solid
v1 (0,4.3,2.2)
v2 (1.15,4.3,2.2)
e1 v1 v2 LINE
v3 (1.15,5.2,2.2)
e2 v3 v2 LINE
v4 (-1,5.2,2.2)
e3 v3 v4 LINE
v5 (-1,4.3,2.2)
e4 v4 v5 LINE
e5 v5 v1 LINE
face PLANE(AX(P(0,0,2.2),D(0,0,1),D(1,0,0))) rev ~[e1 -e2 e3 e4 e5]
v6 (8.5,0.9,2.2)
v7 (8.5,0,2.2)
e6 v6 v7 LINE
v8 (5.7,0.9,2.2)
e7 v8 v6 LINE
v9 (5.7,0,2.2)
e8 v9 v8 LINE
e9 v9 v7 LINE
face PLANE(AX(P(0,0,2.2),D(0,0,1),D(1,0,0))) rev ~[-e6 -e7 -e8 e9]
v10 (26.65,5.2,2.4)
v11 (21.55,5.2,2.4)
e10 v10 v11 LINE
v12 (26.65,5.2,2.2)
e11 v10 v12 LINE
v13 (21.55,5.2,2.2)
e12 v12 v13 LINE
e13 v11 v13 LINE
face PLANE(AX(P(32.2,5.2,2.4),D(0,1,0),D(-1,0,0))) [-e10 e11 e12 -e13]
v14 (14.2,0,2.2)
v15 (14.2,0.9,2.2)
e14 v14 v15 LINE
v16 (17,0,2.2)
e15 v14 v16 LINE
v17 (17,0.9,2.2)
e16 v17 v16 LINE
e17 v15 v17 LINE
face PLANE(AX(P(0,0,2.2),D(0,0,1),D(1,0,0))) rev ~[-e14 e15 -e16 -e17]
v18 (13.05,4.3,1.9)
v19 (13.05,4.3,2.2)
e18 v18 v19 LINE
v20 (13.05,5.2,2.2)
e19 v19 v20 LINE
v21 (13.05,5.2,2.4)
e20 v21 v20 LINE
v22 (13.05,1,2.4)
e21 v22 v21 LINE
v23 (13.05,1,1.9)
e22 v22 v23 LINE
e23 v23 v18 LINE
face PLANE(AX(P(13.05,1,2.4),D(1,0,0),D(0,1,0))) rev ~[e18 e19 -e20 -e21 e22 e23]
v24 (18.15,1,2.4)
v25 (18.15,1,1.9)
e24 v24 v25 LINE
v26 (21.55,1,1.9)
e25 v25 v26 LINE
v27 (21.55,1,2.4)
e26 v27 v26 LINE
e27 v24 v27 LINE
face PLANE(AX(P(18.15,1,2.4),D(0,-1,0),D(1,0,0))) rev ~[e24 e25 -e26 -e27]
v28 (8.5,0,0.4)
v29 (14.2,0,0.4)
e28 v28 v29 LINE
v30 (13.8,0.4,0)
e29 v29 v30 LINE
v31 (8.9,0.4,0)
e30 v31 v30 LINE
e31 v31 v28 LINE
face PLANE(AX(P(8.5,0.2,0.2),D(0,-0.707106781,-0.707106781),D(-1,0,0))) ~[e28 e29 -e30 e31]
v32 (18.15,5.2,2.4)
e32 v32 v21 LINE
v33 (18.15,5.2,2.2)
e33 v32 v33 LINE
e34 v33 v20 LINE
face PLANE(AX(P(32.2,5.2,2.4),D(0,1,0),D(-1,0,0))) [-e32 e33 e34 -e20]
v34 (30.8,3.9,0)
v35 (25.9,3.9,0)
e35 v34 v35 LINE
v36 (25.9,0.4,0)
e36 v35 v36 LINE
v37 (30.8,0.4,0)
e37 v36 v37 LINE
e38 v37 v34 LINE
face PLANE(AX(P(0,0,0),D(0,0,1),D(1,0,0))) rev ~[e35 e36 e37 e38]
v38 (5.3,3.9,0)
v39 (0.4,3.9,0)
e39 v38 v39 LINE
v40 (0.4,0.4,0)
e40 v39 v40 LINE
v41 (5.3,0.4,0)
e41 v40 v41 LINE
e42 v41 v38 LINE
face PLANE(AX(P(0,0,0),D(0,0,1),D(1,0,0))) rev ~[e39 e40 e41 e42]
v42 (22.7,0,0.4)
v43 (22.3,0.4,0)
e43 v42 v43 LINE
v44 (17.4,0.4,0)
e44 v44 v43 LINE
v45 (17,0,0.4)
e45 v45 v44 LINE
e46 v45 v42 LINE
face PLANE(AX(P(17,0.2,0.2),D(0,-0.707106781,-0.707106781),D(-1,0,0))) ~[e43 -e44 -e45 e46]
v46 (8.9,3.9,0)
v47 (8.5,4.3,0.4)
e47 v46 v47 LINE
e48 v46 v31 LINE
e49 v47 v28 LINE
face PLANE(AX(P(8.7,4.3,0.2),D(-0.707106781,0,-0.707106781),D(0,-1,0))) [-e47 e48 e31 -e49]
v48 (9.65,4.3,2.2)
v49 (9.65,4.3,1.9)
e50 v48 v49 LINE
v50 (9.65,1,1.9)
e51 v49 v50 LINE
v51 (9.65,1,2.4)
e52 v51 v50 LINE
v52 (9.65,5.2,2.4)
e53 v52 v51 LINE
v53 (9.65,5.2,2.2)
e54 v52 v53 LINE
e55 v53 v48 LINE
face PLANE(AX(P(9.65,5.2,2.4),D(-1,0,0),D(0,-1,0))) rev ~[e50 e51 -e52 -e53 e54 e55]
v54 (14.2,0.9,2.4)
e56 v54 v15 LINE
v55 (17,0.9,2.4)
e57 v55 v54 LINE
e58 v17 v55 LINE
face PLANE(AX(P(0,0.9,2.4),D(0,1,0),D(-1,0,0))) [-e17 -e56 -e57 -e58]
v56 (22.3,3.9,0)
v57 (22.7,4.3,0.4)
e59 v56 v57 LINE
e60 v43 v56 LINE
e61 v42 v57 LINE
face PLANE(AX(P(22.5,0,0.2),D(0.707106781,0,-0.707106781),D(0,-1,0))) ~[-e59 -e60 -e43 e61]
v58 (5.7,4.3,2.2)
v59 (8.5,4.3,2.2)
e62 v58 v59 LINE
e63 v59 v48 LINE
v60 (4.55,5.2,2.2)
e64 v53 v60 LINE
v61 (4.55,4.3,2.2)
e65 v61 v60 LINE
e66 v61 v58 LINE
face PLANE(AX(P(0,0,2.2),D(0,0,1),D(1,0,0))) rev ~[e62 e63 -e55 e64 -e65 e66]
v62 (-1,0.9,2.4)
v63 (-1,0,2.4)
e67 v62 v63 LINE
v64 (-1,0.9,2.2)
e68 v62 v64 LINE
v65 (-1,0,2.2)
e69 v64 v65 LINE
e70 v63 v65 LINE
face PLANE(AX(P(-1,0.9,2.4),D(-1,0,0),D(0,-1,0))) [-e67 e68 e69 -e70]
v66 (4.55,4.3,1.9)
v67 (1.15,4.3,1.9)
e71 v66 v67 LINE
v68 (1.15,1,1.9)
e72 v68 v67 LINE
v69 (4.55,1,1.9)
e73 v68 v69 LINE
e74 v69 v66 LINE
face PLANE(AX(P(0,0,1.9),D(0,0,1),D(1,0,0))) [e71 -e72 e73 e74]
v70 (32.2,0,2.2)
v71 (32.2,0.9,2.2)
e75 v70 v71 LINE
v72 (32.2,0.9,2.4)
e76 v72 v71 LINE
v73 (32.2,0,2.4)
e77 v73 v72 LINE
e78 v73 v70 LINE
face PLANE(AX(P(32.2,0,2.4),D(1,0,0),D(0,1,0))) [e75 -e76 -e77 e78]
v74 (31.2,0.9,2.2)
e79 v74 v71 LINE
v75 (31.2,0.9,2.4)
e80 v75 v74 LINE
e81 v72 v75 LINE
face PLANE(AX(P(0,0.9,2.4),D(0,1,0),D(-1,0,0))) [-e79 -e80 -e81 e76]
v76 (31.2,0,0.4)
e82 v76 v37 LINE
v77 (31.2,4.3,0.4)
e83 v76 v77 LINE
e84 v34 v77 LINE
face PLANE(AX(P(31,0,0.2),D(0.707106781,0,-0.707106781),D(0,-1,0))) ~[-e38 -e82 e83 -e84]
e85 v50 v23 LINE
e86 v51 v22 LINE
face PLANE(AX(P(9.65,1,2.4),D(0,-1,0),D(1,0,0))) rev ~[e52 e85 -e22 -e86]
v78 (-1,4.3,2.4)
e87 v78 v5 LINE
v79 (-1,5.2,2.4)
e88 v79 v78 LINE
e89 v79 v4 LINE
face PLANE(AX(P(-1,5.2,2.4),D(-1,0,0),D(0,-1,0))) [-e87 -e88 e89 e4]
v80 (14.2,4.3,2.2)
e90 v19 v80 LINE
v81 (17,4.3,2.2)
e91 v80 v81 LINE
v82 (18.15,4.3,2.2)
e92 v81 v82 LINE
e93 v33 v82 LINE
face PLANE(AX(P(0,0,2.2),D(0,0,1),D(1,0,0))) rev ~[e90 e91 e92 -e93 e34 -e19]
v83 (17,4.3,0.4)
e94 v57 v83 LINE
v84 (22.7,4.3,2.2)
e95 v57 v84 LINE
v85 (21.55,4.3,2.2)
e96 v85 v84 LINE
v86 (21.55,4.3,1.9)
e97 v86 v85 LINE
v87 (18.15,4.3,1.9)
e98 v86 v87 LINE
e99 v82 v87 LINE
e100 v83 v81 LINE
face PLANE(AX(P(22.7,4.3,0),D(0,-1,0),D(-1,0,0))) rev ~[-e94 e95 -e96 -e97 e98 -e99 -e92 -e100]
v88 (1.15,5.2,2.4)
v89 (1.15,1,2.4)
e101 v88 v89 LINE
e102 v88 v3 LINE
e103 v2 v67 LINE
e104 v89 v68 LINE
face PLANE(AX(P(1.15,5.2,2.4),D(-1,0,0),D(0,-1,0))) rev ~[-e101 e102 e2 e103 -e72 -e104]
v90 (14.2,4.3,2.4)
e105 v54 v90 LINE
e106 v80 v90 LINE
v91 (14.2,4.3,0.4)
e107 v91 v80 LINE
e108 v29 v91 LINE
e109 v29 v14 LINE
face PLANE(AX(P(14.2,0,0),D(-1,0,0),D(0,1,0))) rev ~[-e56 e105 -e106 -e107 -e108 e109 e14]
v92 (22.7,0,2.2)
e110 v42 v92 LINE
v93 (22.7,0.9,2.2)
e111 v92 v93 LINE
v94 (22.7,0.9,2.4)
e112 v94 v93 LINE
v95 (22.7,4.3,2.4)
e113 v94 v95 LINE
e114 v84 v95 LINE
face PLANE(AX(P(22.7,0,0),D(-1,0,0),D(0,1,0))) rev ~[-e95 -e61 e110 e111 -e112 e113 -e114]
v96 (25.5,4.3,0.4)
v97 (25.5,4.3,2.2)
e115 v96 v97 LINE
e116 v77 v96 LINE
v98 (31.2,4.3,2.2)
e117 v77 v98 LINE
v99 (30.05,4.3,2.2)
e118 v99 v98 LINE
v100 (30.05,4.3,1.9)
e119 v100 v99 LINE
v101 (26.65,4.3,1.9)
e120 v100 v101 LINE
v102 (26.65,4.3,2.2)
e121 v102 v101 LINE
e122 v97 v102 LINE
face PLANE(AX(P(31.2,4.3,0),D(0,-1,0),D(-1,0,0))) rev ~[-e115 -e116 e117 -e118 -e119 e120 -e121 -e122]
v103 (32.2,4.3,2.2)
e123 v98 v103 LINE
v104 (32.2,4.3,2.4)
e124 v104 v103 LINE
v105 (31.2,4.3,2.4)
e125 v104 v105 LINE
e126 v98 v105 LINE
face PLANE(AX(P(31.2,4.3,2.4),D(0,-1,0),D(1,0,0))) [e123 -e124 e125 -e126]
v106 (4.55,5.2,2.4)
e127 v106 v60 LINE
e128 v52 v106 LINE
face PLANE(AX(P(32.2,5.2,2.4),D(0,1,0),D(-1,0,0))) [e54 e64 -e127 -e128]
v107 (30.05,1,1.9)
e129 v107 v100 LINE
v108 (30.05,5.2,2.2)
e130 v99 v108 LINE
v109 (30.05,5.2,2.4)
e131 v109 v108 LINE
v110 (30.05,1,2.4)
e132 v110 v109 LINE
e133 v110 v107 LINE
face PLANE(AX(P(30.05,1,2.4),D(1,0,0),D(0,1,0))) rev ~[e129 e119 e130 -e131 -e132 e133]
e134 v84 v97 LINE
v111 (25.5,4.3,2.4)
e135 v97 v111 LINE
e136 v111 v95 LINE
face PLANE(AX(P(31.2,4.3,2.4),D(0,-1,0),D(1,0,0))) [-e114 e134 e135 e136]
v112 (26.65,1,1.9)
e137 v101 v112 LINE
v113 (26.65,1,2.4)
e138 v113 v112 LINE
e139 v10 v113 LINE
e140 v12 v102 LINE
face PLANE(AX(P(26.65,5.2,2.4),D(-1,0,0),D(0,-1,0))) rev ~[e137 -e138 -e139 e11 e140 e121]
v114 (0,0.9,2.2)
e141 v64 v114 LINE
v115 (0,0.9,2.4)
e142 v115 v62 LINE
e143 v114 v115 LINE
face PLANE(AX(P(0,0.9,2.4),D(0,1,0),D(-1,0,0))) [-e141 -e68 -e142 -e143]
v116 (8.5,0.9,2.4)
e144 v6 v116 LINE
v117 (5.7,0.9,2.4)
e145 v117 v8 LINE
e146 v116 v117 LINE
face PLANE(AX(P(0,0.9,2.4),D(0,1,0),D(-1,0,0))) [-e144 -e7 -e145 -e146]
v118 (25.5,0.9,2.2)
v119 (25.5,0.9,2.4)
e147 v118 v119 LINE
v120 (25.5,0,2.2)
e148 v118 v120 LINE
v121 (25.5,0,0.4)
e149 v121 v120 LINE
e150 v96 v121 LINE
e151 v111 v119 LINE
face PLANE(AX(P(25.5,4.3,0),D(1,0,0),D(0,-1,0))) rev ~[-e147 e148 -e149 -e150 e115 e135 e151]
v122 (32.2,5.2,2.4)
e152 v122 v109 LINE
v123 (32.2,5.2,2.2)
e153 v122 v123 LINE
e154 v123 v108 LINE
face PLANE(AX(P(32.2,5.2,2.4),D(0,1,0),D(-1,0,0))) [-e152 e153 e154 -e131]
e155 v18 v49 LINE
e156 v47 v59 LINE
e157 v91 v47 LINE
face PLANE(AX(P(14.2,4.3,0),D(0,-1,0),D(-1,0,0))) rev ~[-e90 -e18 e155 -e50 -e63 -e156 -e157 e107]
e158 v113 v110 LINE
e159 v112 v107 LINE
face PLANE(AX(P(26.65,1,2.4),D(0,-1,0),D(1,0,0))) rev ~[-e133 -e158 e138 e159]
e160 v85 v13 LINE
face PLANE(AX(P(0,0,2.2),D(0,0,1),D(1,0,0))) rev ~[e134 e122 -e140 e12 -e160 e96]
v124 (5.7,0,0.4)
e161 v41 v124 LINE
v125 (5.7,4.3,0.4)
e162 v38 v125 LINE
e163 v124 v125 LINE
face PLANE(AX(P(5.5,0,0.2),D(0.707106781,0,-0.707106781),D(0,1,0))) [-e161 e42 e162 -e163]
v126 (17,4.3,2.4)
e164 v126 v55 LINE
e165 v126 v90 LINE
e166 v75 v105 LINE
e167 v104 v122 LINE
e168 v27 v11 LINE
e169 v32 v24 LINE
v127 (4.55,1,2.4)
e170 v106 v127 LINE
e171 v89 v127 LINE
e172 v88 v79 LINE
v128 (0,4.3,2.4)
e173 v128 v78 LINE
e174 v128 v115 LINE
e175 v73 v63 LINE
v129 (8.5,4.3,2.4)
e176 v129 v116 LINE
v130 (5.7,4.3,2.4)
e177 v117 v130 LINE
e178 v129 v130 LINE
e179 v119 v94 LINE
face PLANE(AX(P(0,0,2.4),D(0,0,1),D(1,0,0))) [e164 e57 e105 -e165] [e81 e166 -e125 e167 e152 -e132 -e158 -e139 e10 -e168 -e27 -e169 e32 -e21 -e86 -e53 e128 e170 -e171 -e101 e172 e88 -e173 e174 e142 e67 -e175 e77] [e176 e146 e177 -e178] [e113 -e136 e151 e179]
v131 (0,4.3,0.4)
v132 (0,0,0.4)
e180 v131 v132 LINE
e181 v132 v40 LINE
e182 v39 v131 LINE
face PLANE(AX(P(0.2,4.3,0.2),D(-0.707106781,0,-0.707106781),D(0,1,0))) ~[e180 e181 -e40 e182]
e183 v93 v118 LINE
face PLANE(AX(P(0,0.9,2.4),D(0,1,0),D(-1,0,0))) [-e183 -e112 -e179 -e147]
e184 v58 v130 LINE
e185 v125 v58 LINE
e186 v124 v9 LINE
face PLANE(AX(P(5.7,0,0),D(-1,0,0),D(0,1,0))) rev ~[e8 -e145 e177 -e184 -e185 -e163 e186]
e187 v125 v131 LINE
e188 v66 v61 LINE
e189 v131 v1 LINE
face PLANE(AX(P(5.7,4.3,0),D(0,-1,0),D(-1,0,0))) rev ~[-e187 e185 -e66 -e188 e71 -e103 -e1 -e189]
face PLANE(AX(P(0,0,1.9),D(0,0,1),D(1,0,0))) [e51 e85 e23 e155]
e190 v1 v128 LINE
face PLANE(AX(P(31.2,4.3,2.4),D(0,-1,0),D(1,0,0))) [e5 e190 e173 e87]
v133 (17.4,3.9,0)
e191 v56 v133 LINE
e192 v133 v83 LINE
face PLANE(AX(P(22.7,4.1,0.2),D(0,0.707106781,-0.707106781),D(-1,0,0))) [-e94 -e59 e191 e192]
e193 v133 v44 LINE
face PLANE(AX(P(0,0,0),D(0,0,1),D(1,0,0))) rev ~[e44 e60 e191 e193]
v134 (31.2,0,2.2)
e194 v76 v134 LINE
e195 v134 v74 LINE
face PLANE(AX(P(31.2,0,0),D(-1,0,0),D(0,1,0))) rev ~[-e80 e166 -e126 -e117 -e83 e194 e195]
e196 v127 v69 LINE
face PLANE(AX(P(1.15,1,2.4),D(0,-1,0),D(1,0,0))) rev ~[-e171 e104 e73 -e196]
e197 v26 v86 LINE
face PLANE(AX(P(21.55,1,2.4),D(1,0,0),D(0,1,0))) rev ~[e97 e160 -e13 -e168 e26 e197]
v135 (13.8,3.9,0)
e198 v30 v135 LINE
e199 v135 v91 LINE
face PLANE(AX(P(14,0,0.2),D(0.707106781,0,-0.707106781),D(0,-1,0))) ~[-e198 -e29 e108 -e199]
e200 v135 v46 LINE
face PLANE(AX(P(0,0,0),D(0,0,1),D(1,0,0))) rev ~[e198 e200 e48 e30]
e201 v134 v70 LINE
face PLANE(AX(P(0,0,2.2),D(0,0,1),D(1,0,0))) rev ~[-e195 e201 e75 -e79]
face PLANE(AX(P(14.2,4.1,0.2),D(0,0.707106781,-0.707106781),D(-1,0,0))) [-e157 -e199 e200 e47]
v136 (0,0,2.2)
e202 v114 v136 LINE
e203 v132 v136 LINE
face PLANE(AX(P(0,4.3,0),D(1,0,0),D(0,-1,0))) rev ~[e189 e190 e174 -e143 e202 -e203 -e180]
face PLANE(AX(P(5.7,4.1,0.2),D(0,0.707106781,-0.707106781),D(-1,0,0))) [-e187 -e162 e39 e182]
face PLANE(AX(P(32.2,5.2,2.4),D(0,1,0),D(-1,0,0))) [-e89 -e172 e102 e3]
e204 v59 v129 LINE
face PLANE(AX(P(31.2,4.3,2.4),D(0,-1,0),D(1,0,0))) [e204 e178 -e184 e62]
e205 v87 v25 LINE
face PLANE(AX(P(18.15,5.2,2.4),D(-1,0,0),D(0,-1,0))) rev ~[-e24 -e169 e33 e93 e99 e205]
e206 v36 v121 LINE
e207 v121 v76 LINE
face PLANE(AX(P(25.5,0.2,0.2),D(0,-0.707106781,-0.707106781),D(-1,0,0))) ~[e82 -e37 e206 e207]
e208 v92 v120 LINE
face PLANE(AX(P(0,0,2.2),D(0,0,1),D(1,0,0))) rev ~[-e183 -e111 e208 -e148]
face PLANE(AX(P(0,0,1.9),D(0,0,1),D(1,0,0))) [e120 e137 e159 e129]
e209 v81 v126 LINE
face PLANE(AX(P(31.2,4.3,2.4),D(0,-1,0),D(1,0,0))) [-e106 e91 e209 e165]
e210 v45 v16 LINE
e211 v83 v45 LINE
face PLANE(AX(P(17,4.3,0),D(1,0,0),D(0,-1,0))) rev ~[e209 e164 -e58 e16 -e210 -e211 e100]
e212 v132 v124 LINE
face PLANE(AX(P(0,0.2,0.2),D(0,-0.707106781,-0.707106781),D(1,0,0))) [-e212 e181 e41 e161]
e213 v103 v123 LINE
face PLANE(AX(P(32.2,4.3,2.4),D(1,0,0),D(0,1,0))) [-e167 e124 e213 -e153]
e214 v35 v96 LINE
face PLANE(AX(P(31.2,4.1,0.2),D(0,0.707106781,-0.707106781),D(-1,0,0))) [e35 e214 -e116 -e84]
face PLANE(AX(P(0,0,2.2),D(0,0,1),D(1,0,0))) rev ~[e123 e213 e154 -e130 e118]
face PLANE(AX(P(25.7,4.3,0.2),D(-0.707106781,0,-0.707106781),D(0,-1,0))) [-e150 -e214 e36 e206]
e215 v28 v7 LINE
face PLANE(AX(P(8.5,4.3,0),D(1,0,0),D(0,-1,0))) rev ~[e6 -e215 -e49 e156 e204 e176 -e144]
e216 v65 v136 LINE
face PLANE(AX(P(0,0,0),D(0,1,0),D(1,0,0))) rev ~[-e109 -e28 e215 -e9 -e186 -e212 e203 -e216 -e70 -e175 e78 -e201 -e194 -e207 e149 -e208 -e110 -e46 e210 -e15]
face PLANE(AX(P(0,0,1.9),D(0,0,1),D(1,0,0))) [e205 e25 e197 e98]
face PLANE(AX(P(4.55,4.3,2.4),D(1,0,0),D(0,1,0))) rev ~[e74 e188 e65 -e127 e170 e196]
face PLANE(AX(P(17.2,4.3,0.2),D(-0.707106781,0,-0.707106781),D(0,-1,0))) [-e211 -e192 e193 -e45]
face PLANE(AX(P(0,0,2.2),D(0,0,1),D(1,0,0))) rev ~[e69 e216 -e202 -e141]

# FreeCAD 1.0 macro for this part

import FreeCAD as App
import Part
import Sketcher
from FreeCAD import Vector
Q = App.Units.Quantity


def edges_at(feature, points):
    """Names of the edges that pass closest to the given points."""
    edges = feature.Shape.Edges
    near = lambda p: min(range(len(edges)), key=lambda i: edges[i].distToShape(Part.Vertex(*p))[0])
    return sorted({f"Edge{near(p) + 1}" for p in points})


def add_polygon(sketch, points):
    """Adds a closed chain of lines whose ends are joined by coincident constraints."""
    first, n = sketch.GeometryCount, len(points)
    for a, b in zip(points, points[1:] + points[:1]):
        sketch.addGeometry(Part.LineSegment(App.Vector(*a, 0), App.Vector(*b, 0)), False)
    for i in range(n):
        sketch.addConstraint(Sketcher.Constraint("Coincident", first + i, 2, first + (i + 1) % n, 1))

doc = App.newDocument("Part")
params = doc.addObject("Spreadsheet::Sheet", "Params")
for row, (alias, value) in enumerate([
    ("sketch1_width", "5.7 mm"),
    ("sketch1_height", "4.3 mm"),
    ("pad1_length", "2.4 mm"),
    ("sketch2_height", "0.9 mm"),
    ("sketch2_width", "33.2 mm"),
    ("pad2_length", "0.2 mm"),
    ("sketch3_width", "3.4 mm"),
    ("sketch3_height", "4.2 mm"),
    ("pocket1_length", "0.5 mm"),
    ("chamfer_size", "0.4 mm"),
], start=1):
    params.set(f"A{row}", alias)
    params.set(f"B{row}", "=" + value)
    params.setAlias(f"B{row}", alias)

body = doc.addObject("PartDesign::Body", "Body")
body.AllowCompound = True

# Sketch on XY plane
sketch1 = doc.addObject("Sketcher::SketchObject", "Sketch")
body.addObject(sketch1)
sketch1.AttachmentSupport = (doc.XY_Plane, [""])
sketch1.MapMode = "FlatFace"
add_polygon(sketch1, [(0, 4.3), (0, 0), (5.7, 0), (5.7, 4.3)])  # lines 0-3
add_polygon(sketch1, [(8.5, 4.3), (8.5, 0), (14.2, 0), (14.2, 4.3)])  # lines 4-7
add_polygon(sketch1, [(17, 4.3), (17, 0), (22.7, 0), (22.7, 4.3)])  # lines 8-11
add_polygon(sketch1, [(25.5, 4.3), (25.5, 0), (31.2, 0), (31.2, 4.3)])  # lines 12-15
sketch1.addConstraint([
    Sketcher.Constraint("Vertical", 0),
    Sketcher.Constraint("Horizontal", 1),
    Sketcher.Constraint("Vertical", 2),
    Sketcher.Constraint("Horizontal", 3),
    Sketcher.Constraint("Vertical", 4),
    Sketcher.Constraint("Horizontal", 5),
    Sketcher.Constraint("Vertical", 6),
    Sketcher.Constraint("Horizontal", 7),
    Sketcher.Constraint("Vertical", 8),
    Sketcher.Constraint("Horizontal", 9),
    Sketcher.Constraint("Vertical", 10),
    Sketcher.Constraint("Horizontal", 11),
    Sketcher.Constraint("Vertical", 12),
    Sketcher.Constraint("Horizontal", 13),
    Sketcher.Constraint("Vertical", 14),
    Sketcher.Constraint("Horizontal", 15),
    Sketcher.Constraint("Coincident", 0, 2, -1, 1),
    Sketcher.Constraint("PointOnObject", 4, 2, -1),
    Sketcher.Constraint("PointOnObject", 8, 2, -1),
    Sketcher.Constraint("PointOnObject", 12, 2, -1),
    Sketcher.Constraint("Horizontal", 3, 2, 6, 2),
    Sketcher.Constraint("Horizontal", 7, 2, 10, 2),
    Sketcher.Constraint("Horizontal", 11, 2, 14, 2),
    Sketcher.Constraint("Equal", 3, 5),
    Sketcher.Constraint("Equal", 7, 9),
    Sketcher.Constraint("Equal", 11, 13),
    Sketcher.Constraint("DistanceX", 1, 1, 1, 2, Q("5.7 mm")),
    Sketcher.Constraint("DistanceY", 0, 2, 0, 1, Q("4.3 mm")),
    Sketcher.Constraint("DistanceX", -1, 1, 4, 2, Q("8.5 mm")),
    Sketcher.Constraint("DistanceX", 4, 2, 8, 2, Q("8.5 mm")),
    Sketcher.Constraint("DistanceX", 8, 2, 12, 2, Q("8.5 mm")),
])
sketch1.setExpression("Constraints[42]", "Params.sketch1_width")
sketch1.setExpression("Constraints[43]", "Params.sketch1_height")
pad1 = doc.addObject("PartDesign::Pad", "Pad")
body.addObject(pad1)
pad1.Profile = sketch1
pad1.setExpression("Length", "Params.pad1_length")

# Sketch on XY plane
sketch2 = doc.addObject("Sketcher::SketchObject", "Sketch001")
body.addObject(sketch2)
sketch2.AttachmentSupport = (doc.XY_Plane, [""])
sketch2.MapMode = "FlatFace"
sketch2.AttachmentOffset = App.Placement(Vector(0, 0, 2.4), App.Rotation())
add_polygon(sketch2, [(-1, 5.2), (-1, 4.3), (32.2, 4.3), (32.2, 5.2)])  # lines 0-3
add_polygon(sketch2, [(-1, 0), (32.2, 0), (32.2, 0.9), (-1, 0.9)])  # lines 4-7
sketch2.addConstraint([
    Sketcher.Constraint("Vertical", 0),
    Sketcher.Constraint("Horizontal", 1),
    Sketcher.Constraint("Vertical", 2),
    Sketcher.Constraint("Horizontal", 3),
    Sketcher.Constraint("Horizontal", 4),
    Sketcher.Constraint("Vertical", 5),
    Sketcher.Constraint("Horizontal", 6),
    Sketcher.Constraint("Vertical", 7),
    Sketcher.Constraint("PointOnObject", 4, 2, -1),
    Sketcher.Constraint("Vertical", 2, 2, 4, 2),
    Sketcher.Constraint("Vertical", 3, 2, 6, 2),
    Sketcher.Constraint("Equal", 2, 5),
    Sketcher.Constraint("DistanceY", 0, 2, 0, 1, Q("0.9 mm")),
    Sketcher.Constraint("DistanceX", 0, 2, -1, 1, Q("1 mm")),
    Sketcher.Constraint("DistanceX", 1, 1, 1, 2, Q("33.2 mm")),
    Sketcher.Constraint("DistanceY", -1, 1, 0, 2, Q("4.3 mm")),
])
sketch2.setExpression("Constraints[20]", "Params.sketch2_height")
sketch2.setExpression("Constraints[22]", "Params.sketch2_width")
pad2 = doc.addObject("PartDesign::Pad", "Pad001")
body.addObject(pad2)
pad2.Profile = sketch2
pad2.setExpression("Length", "Params.pad2_length")
pad2.Reversed = True

# Sketch on XY plane
sketch3 = doc.addObject("Sketcher::SketchObject", "Sketch002")
body.addObject(sketch3)
sketch3.AttachmentSupport = (doc.XY_Plane, [""])
sketch3.MapMode = "FlatFace"
sketch3.AttachmentOffset = App.Placement(Vector(0, 0, 2.4), App.Rotation())
add_polygon(sketch3, [(30.1, 1), (30.1, 5.2), (26.6, 5.2), (26.6, 1)])  # lines 0-3
add_polygon(sketch3, [(4.5, 5.2), (1.1, 5.2), (1.1, 1), (4.5, 1)])  # lines 4-7
add_polygon(sketch3, [(13.1, 1), (13.1, 5.2), (9.7, 5.2), (9.7, 1)])  # lines 8-11
add_polygon(sketch3, [(21.6, 1), (21.6, 5.2), (18.1, 5.2), (18.1, 1)])  # lines 12-15
sketch3.addConstraint([
    Sketcher.Constraint("Vertical", 0),
    Sketcher.Constraint("Horizontal", 1),
    Sketcher.Constraint("Vertical", 2),
    Sketcher.Constraint("Horizontal", 3),
    Sketcher.Constraint("Horizontal", 4),
    Sketcher.Constraint("Vertical", 5),
    Sketcher.Constraint("Horizontal", 6),
    Sketcher.Constraint("Vertical", 7),
    Sketcher.Constraint("Vertical", 8),
    Sketcher.Constraint("Horizontal", 9),
    Sketcher.Constraint("Vertical", 10),
    Sketcher.Constraint("Horizontal", 11),
    Sketcher.Constraint("Vertical", 12),
    Sketcher.Constraint("Horizontal", 13),
    Sketcher.Constraint("Vertical", 14),
    Sketcher.Constraint("Horizontal", 15),
    Sketcher.Constraint("Horizontal", 1, 2, 4, 2),
    Sketcher.Constraint("Horizontal", 3, 2, 5, 2),
    Sketcher.Constraint("Horizontal", 7, 2, 8, 2),
    Sketcher.Constraint("Horizontal", 6, 2, 10, 2),
    Sketcher.Constraint("Horizontal", 9, 2, 12, 2),
    Sketcher.Constraint("Horizontal", 11, 2, 14, 2),
    Sketcher.Constraint("Equal", 3, 4),
    Sketcher.Constraint("Equal", 6, 9),
    Sketcher.Constraint("Equal", 11, 13),
    Sketcher.Constraint("DistanceX", 1, 2, 1, 1, Q("3.4 mm")),
    Sketcher.Constraint("DistanceY", 0, 1, 0, 2, Q("4.2 mm")),
    Sketcher.Constraint("DistanceX", 7, 2, 8, 2, Q("8.5 mm")),
    Sketcher.Constraint("DistanceX", 12, 2, 0, 2, Q("8.5 mm")),
    Sketcher.Constraint("DistanceX", 8, 2, 12, 2, Q("8.5 mm")),
    Sketcher.Constraint("DistanceY", -1, 1, 2, 2, Q("1 mm")),
    Sketcher.Constraint("DistanceX", -1, 1, 0, 2, Q("30.05 mm")),
])
sketch3.setExpression("Constraints[41]", "Params.sketch3_width")
sketch3.setExpression("Constraints[42]", "Params.sketch3_height")
pocket1 = doc.addObject("PartDesign::Pocket", "Pocket")
body.addObject(pocket1)
pocket1.Profile = sketch3
pocket1.setExpression("Length", "Params.pocket1_length")
doc.recompute()

chamfer = doc.addObject("PartDesign::Chamfer", "Chamfer")
body.addObject(chamfer)
chamfer.Base = (pocket1, edges_at(pocket1, [
    (2.85, 4.3, 0),
    (0, 2.15, 0),
    (2.85, 0, 0),
    (5.7, 2.15, 0),
    (8.5, 2.15, 0),
    (11.35, 4.3, 0),
    (14.2, 2.15, 0),
    (11.35, 0, 0),
    (19.85, 0, 0),
    (17, 2.15, 0),
    (19.85, 4.3, 0),
    (22.7, 2.15, 0),
    (25.5, 2.15, 0),
    (28.35, 4.3, 0),
    (31.2, 2.15, 0),
    (28.35, 0, 0),
]))
chamfer.setExpression("Size", "Params.chamfer_size")

doc.recompute()
